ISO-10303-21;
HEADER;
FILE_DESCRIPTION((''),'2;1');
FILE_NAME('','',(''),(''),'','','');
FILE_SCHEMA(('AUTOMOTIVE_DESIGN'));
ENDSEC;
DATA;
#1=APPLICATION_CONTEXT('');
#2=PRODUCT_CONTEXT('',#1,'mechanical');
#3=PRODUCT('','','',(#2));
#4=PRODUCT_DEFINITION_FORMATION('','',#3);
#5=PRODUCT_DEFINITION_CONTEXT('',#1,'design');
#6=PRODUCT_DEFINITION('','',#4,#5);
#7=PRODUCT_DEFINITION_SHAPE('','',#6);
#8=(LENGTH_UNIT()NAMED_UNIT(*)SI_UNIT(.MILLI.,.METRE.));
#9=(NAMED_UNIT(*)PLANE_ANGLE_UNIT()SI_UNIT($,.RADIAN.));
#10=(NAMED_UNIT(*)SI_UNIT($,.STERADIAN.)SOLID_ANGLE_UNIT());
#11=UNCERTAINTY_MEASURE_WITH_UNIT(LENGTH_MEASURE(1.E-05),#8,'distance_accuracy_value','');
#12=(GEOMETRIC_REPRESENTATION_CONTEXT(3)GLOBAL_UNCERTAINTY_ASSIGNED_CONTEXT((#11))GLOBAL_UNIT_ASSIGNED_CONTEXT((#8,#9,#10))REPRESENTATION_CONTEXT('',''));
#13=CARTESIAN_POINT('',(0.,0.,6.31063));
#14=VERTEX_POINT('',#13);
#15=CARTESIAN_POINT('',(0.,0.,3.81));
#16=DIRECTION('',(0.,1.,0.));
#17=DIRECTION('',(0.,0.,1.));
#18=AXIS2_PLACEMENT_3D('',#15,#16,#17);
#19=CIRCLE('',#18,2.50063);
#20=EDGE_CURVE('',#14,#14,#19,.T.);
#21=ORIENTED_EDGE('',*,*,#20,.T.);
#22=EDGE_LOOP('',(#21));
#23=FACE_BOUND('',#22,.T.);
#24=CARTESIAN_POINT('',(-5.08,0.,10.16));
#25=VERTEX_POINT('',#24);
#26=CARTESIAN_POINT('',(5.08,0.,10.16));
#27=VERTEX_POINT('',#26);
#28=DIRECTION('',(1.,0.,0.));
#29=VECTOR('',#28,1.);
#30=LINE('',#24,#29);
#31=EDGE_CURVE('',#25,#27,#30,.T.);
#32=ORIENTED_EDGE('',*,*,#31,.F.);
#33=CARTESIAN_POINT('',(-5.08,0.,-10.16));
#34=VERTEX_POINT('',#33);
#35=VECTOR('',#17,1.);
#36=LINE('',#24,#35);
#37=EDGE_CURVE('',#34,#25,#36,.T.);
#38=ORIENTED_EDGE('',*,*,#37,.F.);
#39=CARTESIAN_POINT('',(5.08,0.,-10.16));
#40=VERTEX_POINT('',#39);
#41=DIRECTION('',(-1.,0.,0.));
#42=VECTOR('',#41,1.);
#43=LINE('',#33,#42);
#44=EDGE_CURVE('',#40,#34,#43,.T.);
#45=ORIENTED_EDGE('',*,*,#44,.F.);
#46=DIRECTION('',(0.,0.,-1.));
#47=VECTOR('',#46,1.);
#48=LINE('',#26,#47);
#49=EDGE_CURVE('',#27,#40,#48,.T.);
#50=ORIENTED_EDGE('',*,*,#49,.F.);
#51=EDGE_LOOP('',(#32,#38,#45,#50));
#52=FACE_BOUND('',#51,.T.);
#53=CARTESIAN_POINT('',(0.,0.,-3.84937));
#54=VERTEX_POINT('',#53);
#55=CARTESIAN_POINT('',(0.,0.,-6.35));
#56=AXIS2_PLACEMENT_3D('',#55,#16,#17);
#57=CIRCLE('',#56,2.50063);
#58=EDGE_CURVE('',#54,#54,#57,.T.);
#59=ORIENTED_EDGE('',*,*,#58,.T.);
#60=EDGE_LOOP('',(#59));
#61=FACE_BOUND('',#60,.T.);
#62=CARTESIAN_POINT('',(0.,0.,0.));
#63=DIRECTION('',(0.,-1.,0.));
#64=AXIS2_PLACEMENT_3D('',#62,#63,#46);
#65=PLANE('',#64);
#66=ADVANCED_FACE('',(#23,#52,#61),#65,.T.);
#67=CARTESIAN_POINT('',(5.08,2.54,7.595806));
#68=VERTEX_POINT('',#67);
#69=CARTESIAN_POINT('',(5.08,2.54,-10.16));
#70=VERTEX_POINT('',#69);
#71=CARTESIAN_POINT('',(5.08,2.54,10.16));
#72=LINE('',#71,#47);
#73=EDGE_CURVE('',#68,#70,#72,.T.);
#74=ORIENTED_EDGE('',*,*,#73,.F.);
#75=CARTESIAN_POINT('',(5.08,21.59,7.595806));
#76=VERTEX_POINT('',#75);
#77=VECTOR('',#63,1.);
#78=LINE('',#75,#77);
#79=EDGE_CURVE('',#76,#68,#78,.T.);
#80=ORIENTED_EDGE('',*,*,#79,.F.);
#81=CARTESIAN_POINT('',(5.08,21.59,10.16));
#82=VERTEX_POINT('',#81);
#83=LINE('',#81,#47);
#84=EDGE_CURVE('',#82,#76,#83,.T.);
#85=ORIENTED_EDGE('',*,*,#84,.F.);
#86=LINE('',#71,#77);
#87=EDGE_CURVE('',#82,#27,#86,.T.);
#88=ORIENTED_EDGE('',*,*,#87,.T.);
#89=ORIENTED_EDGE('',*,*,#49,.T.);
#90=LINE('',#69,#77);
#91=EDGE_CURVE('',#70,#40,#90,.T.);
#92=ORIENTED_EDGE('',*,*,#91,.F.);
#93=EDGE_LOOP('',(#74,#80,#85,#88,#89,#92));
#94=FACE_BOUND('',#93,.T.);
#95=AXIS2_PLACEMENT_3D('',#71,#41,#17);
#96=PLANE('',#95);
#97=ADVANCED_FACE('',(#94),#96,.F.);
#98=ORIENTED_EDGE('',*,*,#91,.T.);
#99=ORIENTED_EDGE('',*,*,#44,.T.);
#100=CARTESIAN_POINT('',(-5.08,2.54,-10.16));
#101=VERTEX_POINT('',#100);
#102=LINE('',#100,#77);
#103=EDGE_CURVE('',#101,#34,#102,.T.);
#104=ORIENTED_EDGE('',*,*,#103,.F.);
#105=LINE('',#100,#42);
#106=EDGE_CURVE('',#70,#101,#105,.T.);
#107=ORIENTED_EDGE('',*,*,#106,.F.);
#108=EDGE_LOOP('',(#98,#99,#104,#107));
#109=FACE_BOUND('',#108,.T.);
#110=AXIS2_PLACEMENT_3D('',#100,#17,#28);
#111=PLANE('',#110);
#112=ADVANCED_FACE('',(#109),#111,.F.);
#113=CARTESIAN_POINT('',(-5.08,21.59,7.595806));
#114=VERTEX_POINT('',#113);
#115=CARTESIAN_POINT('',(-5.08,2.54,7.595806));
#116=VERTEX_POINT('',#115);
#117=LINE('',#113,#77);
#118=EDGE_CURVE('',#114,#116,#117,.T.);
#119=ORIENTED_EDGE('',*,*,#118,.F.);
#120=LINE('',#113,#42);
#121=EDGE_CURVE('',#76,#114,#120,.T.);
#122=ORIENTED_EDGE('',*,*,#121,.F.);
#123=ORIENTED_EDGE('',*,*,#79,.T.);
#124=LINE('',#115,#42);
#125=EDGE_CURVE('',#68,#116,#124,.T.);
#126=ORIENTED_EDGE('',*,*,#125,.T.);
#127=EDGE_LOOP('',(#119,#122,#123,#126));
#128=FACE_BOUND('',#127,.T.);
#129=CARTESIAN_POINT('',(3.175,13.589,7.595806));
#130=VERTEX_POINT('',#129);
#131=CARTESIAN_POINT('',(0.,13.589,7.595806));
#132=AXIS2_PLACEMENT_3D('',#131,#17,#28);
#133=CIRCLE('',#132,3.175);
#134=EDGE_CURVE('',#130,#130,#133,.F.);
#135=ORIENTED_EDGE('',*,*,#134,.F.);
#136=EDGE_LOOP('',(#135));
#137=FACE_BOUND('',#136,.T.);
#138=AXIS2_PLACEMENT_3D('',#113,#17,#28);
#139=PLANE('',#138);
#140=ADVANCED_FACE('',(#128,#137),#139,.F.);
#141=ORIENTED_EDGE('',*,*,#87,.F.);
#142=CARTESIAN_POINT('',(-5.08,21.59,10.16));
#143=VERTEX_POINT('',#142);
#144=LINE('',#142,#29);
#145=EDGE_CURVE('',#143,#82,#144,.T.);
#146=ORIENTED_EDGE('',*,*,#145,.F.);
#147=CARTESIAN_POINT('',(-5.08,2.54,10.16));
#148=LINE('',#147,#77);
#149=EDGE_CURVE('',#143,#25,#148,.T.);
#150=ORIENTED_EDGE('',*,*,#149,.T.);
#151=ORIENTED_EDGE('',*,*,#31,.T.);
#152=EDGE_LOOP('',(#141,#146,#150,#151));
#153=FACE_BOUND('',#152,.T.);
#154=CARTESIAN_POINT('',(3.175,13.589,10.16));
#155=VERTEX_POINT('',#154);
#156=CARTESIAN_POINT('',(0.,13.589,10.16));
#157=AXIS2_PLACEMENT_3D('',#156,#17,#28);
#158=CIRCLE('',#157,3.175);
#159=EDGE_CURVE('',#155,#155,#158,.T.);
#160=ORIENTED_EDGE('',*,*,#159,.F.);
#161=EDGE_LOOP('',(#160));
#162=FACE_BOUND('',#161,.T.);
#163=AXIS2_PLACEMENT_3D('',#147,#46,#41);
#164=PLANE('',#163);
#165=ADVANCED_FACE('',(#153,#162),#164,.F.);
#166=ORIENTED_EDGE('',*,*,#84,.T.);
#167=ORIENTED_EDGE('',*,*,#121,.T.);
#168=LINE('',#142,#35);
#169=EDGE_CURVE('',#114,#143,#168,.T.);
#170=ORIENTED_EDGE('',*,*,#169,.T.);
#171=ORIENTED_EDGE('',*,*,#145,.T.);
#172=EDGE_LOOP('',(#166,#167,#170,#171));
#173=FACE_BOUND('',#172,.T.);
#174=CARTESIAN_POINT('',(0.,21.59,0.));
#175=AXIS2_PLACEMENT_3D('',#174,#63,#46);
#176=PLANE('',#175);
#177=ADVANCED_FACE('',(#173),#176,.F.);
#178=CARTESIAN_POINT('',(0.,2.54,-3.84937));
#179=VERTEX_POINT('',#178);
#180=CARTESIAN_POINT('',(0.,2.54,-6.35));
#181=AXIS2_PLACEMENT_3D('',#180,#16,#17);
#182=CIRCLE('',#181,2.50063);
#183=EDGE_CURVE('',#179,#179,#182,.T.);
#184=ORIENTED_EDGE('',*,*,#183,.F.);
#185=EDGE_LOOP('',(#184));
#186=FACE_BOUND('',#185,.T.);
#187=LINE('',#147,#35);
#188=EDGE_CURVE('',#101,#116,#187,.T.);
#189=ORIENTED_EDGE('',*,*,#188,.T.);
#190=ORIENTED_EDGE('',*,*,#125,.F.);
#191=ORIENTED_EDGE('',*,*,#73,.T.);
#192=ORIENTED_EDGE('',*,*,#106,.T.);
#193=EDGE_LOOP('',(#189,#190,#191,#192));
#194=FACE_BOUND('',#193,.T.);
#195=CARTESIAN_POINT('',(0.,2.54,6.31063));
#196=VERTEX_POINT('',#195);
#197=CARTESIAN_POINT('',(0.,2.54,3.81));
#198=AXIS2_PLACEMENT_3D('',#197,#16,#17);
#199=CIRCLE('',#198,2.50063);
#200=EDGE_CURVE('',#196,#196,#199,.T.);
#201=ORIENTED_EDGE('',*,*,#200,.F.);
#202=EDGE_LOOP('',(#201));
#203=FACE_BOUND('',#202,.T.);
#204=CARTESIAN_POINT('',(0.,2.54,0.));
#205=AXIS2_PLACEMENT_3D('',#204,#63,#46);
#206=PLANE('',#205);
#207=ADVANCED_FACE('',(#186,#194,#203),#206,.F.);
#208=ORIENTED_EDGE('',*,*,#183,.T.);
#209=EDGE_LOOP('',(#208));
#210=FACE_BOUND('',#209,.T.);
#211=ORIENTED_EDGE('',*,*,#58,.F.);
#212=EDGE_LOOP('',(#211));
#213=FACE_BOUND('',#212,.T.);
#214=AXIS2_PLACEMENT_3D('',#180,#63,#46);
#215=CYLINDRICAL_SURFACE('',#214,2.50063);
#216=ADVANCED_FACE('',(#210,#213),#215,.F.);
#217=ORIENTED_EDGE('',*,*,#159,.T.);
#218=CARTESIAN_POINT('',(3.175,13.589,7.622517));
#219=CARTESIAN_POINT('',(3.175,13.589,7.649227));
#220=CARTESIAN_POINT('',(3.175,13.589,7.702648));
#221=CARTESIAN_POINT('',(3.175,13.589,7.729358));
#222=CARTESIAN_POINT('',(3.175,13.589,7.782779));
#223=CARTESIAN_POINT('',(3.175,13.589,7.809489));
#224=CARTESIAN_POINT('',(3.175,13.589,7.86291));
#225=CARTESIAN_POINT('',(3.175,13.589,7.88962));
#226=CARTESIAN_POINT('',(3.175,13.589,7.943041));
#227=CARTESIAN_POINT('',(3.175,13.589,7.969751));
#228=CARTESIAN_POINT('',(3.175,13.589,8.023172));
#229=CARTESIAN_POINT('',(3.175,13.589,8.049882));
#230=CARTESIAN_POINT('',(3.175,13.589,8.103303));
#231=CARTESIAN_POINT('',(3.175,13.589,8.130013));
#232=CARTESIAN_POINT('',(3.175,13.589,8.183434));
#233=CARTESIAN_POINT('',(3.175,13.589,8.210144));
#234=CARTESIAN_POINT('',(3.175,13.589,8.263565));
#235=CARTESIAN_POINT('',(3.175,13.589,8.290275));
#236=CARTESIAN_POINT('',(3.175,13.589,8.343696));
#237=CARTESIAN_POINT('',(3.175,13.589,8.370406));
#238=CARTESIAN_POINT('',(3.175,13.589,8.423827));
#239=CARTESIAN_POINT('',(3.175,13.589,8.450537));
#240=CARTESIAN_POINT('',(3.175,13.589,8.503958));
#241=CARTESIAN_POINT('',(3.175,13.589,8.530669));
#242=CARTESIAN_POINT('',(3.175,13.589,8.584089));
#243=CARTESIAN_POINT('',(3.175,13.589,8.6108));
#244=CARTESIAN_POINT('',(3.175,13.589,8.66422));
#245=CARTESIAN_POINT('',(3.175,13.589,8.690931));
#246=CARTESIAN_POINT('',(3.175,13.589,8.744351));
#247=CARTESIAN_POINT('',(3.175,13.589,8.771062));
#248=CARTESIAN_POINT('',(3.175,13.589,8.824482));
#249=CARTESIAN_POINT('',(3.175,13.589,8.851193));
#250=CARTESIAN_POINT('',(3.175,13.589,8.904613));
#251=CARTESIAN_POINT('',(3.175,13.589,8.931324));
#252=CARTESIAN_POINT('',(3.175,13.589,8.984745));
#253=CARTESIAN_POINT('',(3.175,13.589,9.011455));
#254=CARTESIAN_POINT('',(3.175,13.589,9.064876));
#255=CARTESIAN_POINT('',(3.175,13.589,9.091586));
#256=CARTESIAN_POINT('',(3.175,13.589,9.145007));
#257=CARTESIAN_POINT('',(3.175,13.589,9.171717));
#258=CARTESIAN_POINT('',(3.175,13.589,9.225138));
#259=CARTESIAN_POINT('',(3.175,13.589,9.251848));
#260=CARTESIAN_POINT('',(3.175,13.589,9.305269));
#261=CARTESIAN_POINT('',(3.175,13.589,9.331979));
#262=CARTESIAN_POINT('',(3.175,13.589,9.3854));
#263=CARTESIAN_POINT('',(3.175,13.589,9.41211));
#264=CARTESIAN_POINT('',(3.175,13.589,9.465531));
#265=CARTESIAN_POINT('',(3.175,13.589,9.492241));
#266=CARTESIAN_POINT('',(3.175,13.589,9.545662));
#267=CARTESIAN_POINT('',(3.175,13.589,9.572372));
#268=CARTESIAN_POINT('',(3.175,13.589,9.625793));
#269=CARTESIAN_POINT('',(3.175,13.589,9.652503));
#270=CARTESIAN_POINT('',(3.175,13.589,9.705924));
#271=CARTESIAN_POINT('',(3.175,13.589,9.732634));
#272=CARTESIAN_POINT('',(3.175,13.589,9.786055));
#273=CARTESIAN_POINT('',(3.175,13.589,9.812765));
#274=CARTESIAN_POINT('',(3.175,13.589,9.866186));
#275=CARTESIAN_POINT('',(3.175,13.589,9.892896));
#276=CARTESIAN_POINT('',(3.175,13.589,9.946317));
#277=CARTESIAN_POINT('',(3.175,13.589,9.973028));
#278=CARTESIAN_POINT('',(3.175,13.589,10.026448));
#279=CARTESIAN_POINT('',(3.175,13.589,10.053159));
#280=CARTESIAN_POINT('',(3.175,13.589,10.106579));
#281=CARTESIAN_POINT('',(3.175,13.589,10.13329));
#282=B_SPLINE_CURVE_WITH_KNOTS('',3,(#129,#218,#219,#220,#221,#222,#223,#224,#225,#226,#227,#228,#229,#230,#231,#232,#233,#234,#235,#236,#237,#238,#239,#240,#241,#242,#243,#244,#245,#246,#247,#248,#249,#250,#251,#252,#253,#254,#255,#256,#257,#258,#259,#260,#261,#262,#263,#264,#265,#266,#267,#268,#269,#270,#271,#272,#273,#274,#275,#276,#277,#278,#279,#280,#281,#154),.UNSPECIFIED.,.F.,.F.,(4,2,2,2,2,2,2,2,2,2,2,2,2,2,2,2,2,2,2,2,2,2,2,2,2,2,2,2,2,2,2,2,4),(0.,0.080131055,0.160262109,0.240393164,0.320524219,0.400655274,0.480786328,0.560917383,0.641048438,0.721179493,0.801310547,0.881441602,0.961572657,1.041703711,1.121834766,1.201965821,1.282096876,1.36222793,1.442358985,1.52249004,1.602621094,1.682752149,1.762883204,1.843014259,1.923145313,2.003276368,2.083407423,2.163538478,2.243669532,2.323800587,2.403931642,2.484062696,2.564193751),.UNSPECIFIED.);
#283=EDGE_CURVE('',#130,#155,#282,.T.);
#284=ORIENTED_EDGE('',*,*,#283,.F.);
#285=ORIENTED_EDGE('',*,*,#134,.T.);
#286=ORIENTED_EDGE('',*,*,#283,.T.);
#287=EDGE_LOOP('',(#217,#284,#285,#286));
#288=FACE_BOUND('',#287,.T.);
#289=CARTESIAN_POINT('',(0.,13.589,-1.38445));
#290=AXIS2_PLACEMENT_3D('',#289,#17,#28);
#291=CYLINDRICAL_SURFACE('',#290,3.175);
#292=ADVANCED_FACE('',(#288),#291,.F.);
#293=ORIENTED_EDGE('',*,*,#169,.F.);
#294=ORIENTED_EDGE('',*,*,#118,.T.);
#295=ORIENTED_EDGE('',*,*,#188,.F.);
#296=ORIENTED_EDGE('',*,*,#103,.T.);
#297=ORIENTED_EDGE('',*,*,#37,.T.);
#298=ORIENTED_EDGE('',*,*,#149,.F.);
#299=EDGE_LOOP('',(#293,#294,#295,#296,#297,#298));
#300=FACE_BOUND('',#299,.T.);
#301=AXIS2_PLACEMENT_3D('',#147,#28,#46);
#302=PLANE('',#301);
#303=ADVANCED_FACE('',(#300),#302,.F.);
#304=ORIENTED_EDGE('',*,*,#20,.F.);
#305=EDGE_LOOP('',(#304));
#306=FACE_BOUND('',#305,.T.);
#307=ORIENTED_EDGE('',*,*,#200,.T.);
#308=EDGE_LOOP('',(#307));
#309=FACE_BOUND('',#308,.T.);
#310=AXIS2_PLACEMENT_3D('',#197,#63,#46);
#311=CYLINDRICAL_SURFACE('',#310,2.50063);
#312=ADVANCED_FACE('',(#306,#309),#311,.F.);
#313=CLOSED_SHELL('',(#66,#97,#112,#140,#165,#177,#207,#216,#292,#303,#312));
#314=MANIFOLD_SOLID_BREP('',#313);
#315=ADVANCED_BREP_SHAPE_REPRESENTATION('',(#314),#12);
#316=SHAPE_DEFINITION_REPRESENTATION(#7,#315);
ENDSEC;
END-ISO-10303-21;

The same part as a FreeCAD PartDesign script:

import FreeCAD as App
import Part
import Sketcher

V = App.Vector
Q = App.Units.Quantity


def add_polygon(sketch, points):
    """Adds a closed chain of lines whose ends are joined by coincident constraints."""
    first, n = sketch.GeometryCount, len(points)
    for a, b in zip(points, points[1:] + points[:1]):
        sketch.addGeometry(Part.LineSegment(App.Vector(*a, 0), App.Vector(*b, 0)), False)
    for i in range(n):
        sketch.addConstraint(Sketcher.Constraint("Coincident", first + i, 2, first + (i + 1) % n, 1))

doc = App.newDocument("Part")
body = doc.addObject("PartDesign::Body", "Body")

sketch1 = body.newObject("Sketcher::SketchObject", "Sketch")
sketch1.AttachmentSupport = (doc.getObject("XZ_Plane"), [""])
sketch1.MapMode = "FlatFace"
add_polygon(sketch1, [(-5.1, -10.2), (-5.1, 10.2), (5.1, 10.2), (5.1, -10.2)])
sketch1.addGeometry(Part.Circle(V(0, 3.8, 0), V(0, 0, 1), 2.5), False)
sketch1.addGeometry(Part.Circle(V(0, -6.3, 0), V(0, 0, 1), 2.5), False)
sketch1.addConstraint(Sketcher.Constraint("Vertical", 0))
sketch1.addConstraint(Sketcher.Constraint("Horizontal", 1))
sketch1.addConstraint(Sketcher.Constraint("Vertical", 2))
sketch1.addConstraint(Sketcher.Constraint("Horizontal", 3))
sketch1.addConstraint(Sketcher.Constraint("Equal", 4, 5))
sketch1.addConstraint(Sketcher.Constraint("Symmetric", 0, 2, 2, 2, -1, 1))
sketch1.addConstraint(Sketcher.Constraint("PointOnObject", 4, 3, -2))
sketch1.addConstraint(Sketcher.Constraint("PointOnObject", 5, 3, -2))
sketch1.addConstraint(Sketcher.Constraint("DistanceX", 1, 1, 1, 2, Q("0.4 in")))
sketch1.addConstraint(Sketcher.Constraint("DistanceY", 0, 1, 0, 2, Q("0.8 in")))
sketch1.addConstraint(Sketcher.Constraint("Diameter", 4, Q("0.1969 in")))
sketch1.addConstraint(Sketcher.Constraint("DistanceY", 5, 3, 4, 3, Q("0.4 in")))
sketch1.addConstraint(Sketcher.Constraint("DistanceY", -1, 1, 4, 3, Q("0.15 in")))
pad1 = body.newObject("PartDesign::Pad", "Pad")
pad1.Profile = sketch1
pad1.Length = Q("0.1 in")
pad1.Reversed = True

sketch2 = body.newObject("Sketcher::SketchObject", "Sketch001")
sketch2.AttachmentSupport = (doc.getObject("XZ_Plane"), [""])
sketch2.MapMode = "FlatFace"
sketch2.AttachmentOffset = App.Placement(V(0, 0, -0.1 * 25.4), App.Rotation())
add_polygon(sketch2, [(-5.1, 7.6), (-5.1, 10.2), (5.1, 10.2), (5.1, 7.6)])
sketch2.addConstraint(Sketcher.Constraint("Vertical", 0))
sketch2.addConstraint(Sketcher.Constraint("Horizontal", 1))
sketch2.addConstraint(Sketcher.Constraint("Vertical", 2))
sketch2.addConstraint(Sketcher.Constraint("Horizontal", 3))
sketch2.addConstraint(Sketcher.Constraint("DistanceX", 1, 1, 1, 2, Q("0.4 in")))
sketch2.addConstraint(Sketcher.Constraint("DistanceX", 0, 2, -1, 1, Q("0.2 in")))
sketch2.addConstraint(Sketcher.Constraint("DistanceY", -1, 1, 0, 2, Q("0.4 in")))
sketch2.addConstraint(Sketcher.Constraint("DistanceY", 0, 1, 0, 2, Q("2.564194 mm")))
pad2 = body.newObject("PartDesign::Pad", "Pad001")
pad2.Profile = sketch2
pad2.Length = Q("0.75 in")
pad2.Reversed = True

sketch3 = body.newObject("Sketcher::SketchObject", "Sketch002")
sketch3.AttachmentSupport = (doc.getObject("XY_Plane"), [""])
sketch3.MapMode = "FlatFace"
sketch3.AttachmentOffset = App.Placement(V(0, 0, 0.4 * 25.4), App.Rotation())
sketch3.addGeometry(Part.Circle(V(0, 13.6, 0), V(0, 0, 1), 3.2), False)
sketch3.addConstraint(Sketcher.Constraint("PointOnObject", 0, 3, -2))
sketch3.addConstraint(Sketcher.Constraint("Diameter", 0, Q("0.25 in")))
sketch3.addConstraint(Sketcher.Constraint("DistanceY", -1, 1, 0, 3, Q("0.535 in")))
pocket1 = body.newObject("PartDesign::Pocket", "Pocket")
pocket1.Profile = sketch3
pocket1.Length = 2.564194

doc.recompute()
